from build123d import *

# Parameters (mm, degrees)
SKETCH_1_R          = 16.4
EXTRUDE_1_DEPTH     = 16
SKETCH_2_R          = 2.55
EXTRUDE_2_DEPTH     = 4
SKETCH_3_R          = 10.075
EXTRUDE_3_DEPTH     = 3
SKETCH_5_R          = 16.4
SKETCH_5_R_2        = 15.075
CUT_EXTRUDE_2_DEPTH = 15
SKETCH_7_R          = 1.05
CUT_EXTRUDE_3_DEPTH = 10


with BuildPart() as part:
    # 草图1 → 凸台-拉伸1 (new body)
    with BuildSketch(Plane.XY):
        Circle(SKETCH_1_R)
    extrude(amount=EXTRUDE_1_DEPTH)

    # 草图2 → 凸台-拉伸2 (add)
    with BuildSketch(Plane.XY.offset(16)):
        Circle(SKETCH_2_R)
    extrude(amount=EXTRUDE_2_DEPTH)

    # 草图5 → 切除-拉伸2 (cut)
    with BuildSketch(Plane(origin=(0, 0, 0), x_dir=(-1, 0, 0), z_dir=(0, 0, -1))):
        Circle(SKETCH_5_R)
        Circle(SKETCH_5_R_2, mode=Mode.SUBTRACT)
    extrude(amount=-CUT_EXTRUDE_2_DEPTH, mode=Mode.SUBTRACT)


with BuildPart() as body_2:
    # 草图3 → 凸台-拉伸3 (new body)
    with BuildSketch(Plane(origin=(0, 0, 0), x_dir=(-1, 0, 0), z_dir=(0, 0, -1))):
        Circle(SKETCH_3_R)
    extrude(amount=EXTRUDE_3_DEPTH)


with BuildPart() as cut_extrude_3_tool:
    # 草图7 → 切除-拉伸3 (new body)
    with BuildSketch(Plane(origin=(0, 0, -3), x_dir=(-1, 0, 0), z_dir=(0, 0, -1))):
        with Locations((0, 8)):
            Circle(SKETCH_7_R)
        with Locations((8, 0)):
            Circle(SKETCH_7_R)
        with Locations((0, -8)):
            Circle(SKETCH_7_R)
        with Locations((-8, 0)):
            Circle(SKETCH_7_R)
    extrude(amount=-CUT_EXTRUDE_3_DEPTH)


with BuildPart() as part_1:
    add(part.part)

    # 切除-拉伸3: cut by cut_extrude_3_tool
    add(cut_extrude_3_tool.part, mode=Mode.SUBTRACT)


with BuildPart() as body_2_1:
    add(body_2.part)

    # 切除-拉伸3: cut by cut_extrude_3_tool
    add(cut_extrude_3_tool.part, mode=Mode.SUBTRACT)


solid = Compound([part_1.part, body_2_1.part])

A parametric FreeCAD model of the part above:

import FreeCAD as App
import Part
import Sketcher
Q = App.Units.Quantity

doc = App.newDocument("Part")
body = doc.addObject("PartDesign::Body", "Body")

# Sketch on XY plane
sketch1 = doc.addObject("Sketcher::SketchObject", "Sketch")
body.addObject(sketch1)
sketch1.AttachmentSupport = (doc.XY_Plane, [""])
sketch1.MapMode = "FlatFace"
sketch1.addGeometry(Part.Circle(App.Vector(0, 0, 0), App.Vector(0, 0, 1), 16), False)
sketch1.addConstraint(Sketcher.Constraint("Coincident", 0, 3, -1, 1))
sketch1.addConstraint(Sketcher.Constraint("Diameter", 0, Q("32.8 mm")))
pad1 = doc.addObject("PartDesign::Pad", "Pad")
body.addObject(pad1)
pad1.Profile = sketch1
pad1.Length = 16

# Sketch on XY plane
sketch2 = doc.addObject("Sketcher::SketchObject", "Sketch001")
body.addObject(sketch2)
sketch2.AttachmentSupport = (doc.XY_Plane, [""])
sketch2.MapMode = "FlatFace"
sketch2.AttachmentOffset = App.Placement(App.Vector(0, 0, 16), App.Rotation())
sketch2.addGeometry(Part.Circle(App.Vector(0, 0, 0), App.Vector(0, 0, 1), 2.5), False)
sketch2.addConstraint(Sketcher.Constraint("Coincident", 0, 3, -1, 1))
sketch2.addConstraint(Sketcher.Constraint("Diameter", 0, Q("5.1 mm")))
pad2 = doc.addObject("PartDesign::Pad", "Pad001")
body.addObject(pad2)
pad2.Profile = sketch2
pad2.Length = 4

# Sketch on XY plane
sketch3 = doc.addObject("Sketcher::SketchObject", "Sketch002")
body.addObject(sketch3)
sketch3.AttachmentSupport = (doc.XY_Plane, [""])
sketch3.MapMode = "FlatFace"
sketch3.addGeometry(Part.Circle(App.Vector(0, 0, 0), App.Vector(0, 0, 1), 16), False)
sketch3.addGeometry(Part.Circle(App.Vector(0, 0, 0), App.Vector(0, 0, 1), 15), False)
sketch3.addConstraint(Sketcher.Constraint("Coincident", 0, 3, -1, 1))
sketch3.addConstraint(Sketcher.Constraint("Coincident", 1, 3, -1, 1))
sketch3.addConstraint(Sketcher.Constraint("Diameter", 0, Q("32.8 mm")))
sketch3.addConstraint(Sketcher.Constraint("Diameter", 1, Q("30.15 mm")))
pocket1 = doc.addObject("PartDesign::Pocket", "Pocket")
body.addObject(pocket1)
pocket1.Profile = sketch3
pocket1.Length = 15
pocket1.Reversed = True
body2 = doc.addObject("PartDesign::Body", "Body001")

# Sketch on XY plane
sketch4 = doc.addObject("Sketcher::SketchObject", "Sketch003")
body2.addObject(sketch4)
sketch4.AttachmentSupport = (doc.getObject("XY_Plane001"), [""])
sketch4.MapMode = "FlatFace"
sketch4.addGeometry(Part.Circle(App.Vector(0, 0, 0), App.Vector(0, 0, 1), 10), False)
sketch4.addConstraint(Sketcher.Constraint("Coincident", 0, 3, -1, 1))
sketch4.addConstraint(Sketcher.Constraint("Diameter", 0, Q("20.15 mm")))
pad3 = doc.addObject("PartDesign::Pad", "Pad002")
body2.addObject(pad3)
pad3.Profile = sketch4
pad3.Length = 3
pad3.Reversed = True
body3 = doc.addObject("PartDesign::Body", "Body002")
body3.AllowCompound = True

# Sketch on XY plane
sketch5 = doc.addObject("Sketcher::SketchObject", "Sketch004")
body3.addObject(sketch5)
sketch5.AttachmentSupport = (doc.getObject("XY_Plane002"), [""])
sketch5.MapMode = "FlatFace"
sketch5.AttachmentOffset = App.Placement(App.Vector(0, 0, -3), App.Rotation())
sketch5.addGeometry(Part.Circle(App.Vector(0, 8, 0), App.Vector(0, 0, 1), 1.1), False)
sketch5.addGeometry(Part.Circle(App.Vector(-8, 0, 0), App.Vector(0, 0, 1), 1.1), False)
sketch5.addGeometry(Part.Circle(App.Vector(0, -8, 0), App.Vector(0, 0, 1), 1.1), False)
sketch5.addGeometry(Part.Circle(App.Vector(8, 0, 0), App.Vector(0, 0, 1), 1.1), False)
sketch5.addConstraint(Sketcher.Constraint("Equal", 0, 1))
sketch5.addConstraint(Sketcher.Constraint("Equal", 1, 2))
sketch5.addConstraint(Sketcher.Constraint("Equal", 2, 3))
sketch5.addConstraint(Sketcher.Constraint("Symmetric", 0, 3, 2, 3, -1, 1))
sketch5.addConstraint(Sketcher.Constraint("Symmetric", 1, 3, 3, 3, -1, 1))
sketch5.addConstraint(Sketcher.Constraint("PointOnObject", 0, 3, -2))
sketch5.addConstraint(Sketcher.Constraint("PointOnObject", 1, 3, -1))
sketch5.addConstraint(Sketcher.Constraint("Diameter", 0, Q("2.1 mm")))
sketch5.addConstraint(Sketcher.Constraint("DistanceY", -1, 1, 0, 3, Q("8 mm")))
sketch5.addConstraint(Sketcher.Constraint("DistanceX", 1, 3, -1, 1, Q("8 mm")))
pad4 = doc.addObject("PartDesign::Pad", "Pad003")
body3.addObject(pad4)
pad4.Profile = sketch5
pad4.Length = 10
doc.recompute()

body4 = doc.addObject("PartDesign::Body", "Body003")
body4.BaseFeature = body3
boolean = doc.addObject("PartDesign::Boolean", "Boolean")
body.addObject(boolean)
boolean.Type = "Cut"
boolean.addObjects([body4])
doc.recompute()

boolean2 = doc.addObject("PartDesign::Boolean", "Boolean001")
body2.addObject(boolean2)
boolean2.Type = "Cut"
boolean2.addObjects([body3])

doc.recompute()
